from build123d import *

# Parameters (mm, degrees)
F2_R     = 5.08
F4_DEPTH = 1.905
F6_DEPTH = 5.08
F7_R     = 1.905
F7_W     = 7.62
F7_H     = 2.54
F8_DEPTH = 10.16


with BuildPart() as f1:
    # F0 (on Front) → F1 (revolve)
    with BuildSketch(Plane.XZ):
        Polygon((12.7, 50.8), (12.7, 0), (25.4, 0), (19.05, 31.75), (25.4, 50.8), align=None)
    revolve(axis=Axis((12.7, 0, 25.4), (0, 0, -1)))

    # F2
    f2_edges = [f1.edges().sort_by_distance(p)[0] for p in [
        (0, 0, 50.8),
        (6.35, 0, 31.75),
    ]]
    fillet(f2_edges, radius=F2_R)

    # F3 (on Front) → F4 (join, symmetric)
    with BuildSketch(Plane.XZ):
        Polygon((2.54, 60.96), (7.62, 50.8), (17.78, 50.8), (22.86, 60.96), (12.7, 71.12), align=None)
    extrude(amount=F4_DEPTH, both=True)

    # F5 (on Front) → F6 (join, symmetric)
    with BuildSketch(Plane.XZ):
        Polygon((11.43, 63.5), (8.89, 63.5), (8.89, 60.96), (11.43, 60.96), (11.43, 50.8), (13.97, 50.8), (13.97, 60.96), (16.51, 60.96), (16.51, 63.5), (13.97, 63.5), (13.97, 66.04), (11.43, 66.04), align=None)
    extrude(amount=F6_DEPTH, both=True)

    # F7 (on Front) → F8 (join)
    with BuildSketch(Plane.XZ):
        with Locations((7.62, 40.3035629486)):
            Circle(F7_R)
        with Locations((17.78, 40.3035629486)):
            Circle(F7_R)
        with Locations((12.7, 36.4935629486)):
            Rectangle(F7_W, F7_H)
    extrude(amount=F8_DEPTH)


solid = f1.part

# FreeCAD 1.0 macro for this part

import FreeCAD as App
import Part
import Sketcher
from FreeCAD import Vector
Q = App.Units.Quantity


def edges_at(feature, points):
    """Names of the edges that pass closest to the given points."""
    edges = feature.Shape.Edges
    near = lambda p: min(range(len(edges)), key=lambda i: edges[i].distToShape(Part.Vertex(*p))[0])
    return sorted({f"Edge{near(p) + 1}" for p in points})


def add_polygon(sketch, points):
    """Adds a closed chain of lines whose ends are joined by coincident constraints."""
    first, n = sketch.GeometryCount, len(points)
    for a, b in zip(points, points[1:] + points[:1]):
        sketch.addGeometry(Part.LineSegment(App.Vector(*a, 0), App.Vector(*b, 0)), False)
    for i in range(n):
        sketch.addConstraint(Sketcher.Constraint("Coincident", first + i, 2, first + (i + 1) % n, 1))

doc = App.newDocument("Part")
body = doc.addObject("PartDesign::Body", "Body")

# Sketch on XZ plane
sketch1 = body.newObject("Sketcher::SketchObject", "Sketch")
sketch1.AttachmentSupport = (doc.getObject("XZ_Plane"), [""])
sketch1.MapMode = "FlatFace"
add_polygon(sketch1, [(12.7, 50.8), (12.7, 0), (25.4, 0), (19.05, 31.75), (25.4, 50.8)])  # lines 0-4
sketch1.addGeometry(Part.LineSegment(Vector(12.7, 50.8, 0), Vector(12.7, 0, 0)), True)  # axis
sketch1.addConstraint([
    Sketcher.Constraint("Vertical", 0),
    Sketcher.Constraint("Horizontal", 1),
    Sketcher.Constraint("Horizontal", 4),
    Sketcher.Constraint("Vertical", 5),
    Sketcher.Constraint("Coincident", 5, 1, 4, 2),
    Sketcher.Constraint("PointOnObject", 0, 2, -1),
    Sketcher.Constraint("PointOnObject", 5, 2, -1),
    Sketcher.Constraint("Vertical", 1, 2, 3, 2),
    Sketcher.Constraint("DistanceY", 0, 2, 0, 1, Q("2 in")),
    Sketcher.Constraint("DistanceX", 1, 1, 1, 2, Q("0.5 in")),
    Sketcher.Constraint("DistanceX", -1, 1, 1, 2, Q("1 in")),
    Sketcher.Constraint("DistanceX", -1, 1, 2, 2, Q("0.75 in")),
    Sketcher.Constraint("DistanceY", -1, 1, 2, 2, Q("1.25 in")),
])
revolution = body.newObject("PartDesign::Revolution", "Revolution")
revolution.Profile = sketch1
revolution.ReferenceAxis = (sketch1, ["Axis0"])
revolution.Angle = 360
doc.recompute()

fillet = body.newObject("PartDesign::Fillet", "Fillet")
fillet.Base = (revolution, edges_at(revolution, [(0, 0, 50.8), (6.35, 0, 31.75)]))
fillet.Radius = Q("0.2 in")

# Sketch on XZ plane
sketch2 = body.newObject("Sketcher::SketchObject", "Sketch001")
sketch2.AttachmentSupport = (doc.getObject("XZ_Plane"), [""])
sketch2.MapMode = "FlatFace"
add_polygon(sketch2, [(2.54, 60.96), (7.62, 50.8), (17.78, 50.8), (22.86, 60.96), (12.7, 71.12)])  # lines 0-4
sketch2.addConstraint([
    Sketcher.Constraint("Horizontal", 1),
    Sketcher.Constraint("Perpendicular", 3, 4),
    Sketcher.Constraint("Horizontal", 2, 2, 4, 2),
    Sketcher.Constraint("Equal", 0, 2),
    Sketcher.Constraint("Equal", 3, 4),
    Sketcher.Constraint("DistanceX", 1, 1, 1, 2, Q("0.4 in")),
    Sketcher.Constraint("DistanceY", -1, 1, 0, 2, Q("2 in")),
    Sketcher.Constraint("DistanceX", -1, 1, 0, 2, Q("0.3 in")),
    Sketcher.Constraint("DistanceX", -1, 1, 2, 2, Q("0.9 in")),
    Sketcher.Constraint("DistanceY", -1, 1, 2, 2, Q("2.4 in")),
])
pad1 = body.newObject("PartDesign::Pad", "Pad")
pad1.Profile = sketch2
pad1.Length = Q("0.15 in")
pad1.Midplane = True

# Sketch on XZ plane
sketch3 = body.newObject("Sketcher::SketchObject", "Sketch002")
sketch3.AttachmentSupport = (doc.getObject("XZ_Plane"), [""])
sketch3.MapMode = "FlatFace"
add_polygon(sketch3, [(11.43, 63.5), (8.89, 63.5), (8.89, 60.96), (11.43, 60.96), (11.43, 50.8), (13.97, 50.8), (13.97, 60.96), (16.51, 60.96), (16.51, 63.5), (13.97, 63.5), (13.97, 66.04), (11.43, 66.04)])  # lines 0-11
sketch3.addConstraint([
    Sketcher.Constraint("Horizontal", 0),
    Sketcher.Constraint("Vertical", 1),
    Sketcher.Constraint("Horizontal", 2),
    Sketcher.Constraint("Vertical", 3),
    Sketcher.Constraint("Horizontal", 4),
    Sketcher.Constraint("Vertical", 5),
    Sketcher.Constraint("Horizontal", 6),
    Sketcher.Constraint("Vertical", 7),
    Sketcher.Constraint("Horizontal", 8),
    Sketcher.Constraint("Vertical", 9),
    Sketcher.Constraint("Horizontal", 10),
    Sketcher.Constraint("Vertical", 11),
    Sketcher.Constraint("Horizontal", 2, 2, 5, 2),
    Sketcher.Constraint("Horizontal", 0, 2, 7, 2),
    Sketcher.Constraint("Vertical", 5, 2, 8, 2),
    Sketcher.Constraint("Vertical", 3, 2, 10, 2),
    Sketcher.Constraint("Equal", 2, 4),
    Sketcher.Constraint("Equal", 4, 6),
    Sketcher.Constraint("Equal", 10, 1),
    Sketcher.Constraint("Equal", 7, 9),
    Sketcher.Constraint("DistanceX", 0, 2, 0, 1, Q("0.1 in")),
    Sketcher.Constraint("DistanceY", 3, 2, 3, 1, Q("0.4 in")),
    Sketcher.Constraint("DistanceY", -1, 1, 3, 2, Q("2 in")),
    Sketcher.Constraint("DistanceX", -1, 1, 0, 2, Q("0.35 in")),
])
pad2 = body.newObject("PartDesign::Pad", "Pad001")
pad2.Profile = sketch3
pad2.Length = Q("0.4 in")
pad2.Midplane = True

# Sketch on XZ plane
sketch4 = body.newObject("Sketcher::SketchObject", "Sketch003")
sketch4.AttachmentSupport = (doc.getObject("XZ_Plane"), [""])
sketch4.MapMode = "FlatFace"
sketch4.addGeometry(Part.Circle(Vector(7.62, 40.303563, 0), Vector(0, 0, 1), 1.905), False)  # 0
sketch4.addGeometry(Part.Circle(Vector(17.78, 40.303563, 0), Vector(0, 0, 1), 1.905), False)  # 1
add_polygon(sketch4, [(8.89, 37.763563), (8.89, 35.223563), (16.51, 35.223563), (16.51, 37.763563)])  # lines 2-5
sketch4.addConstraint([
    Sketcher.Constraint("Vertical", 2),
    Sketcher.Constraint("Horizontal", 3),
    Sketcher.Constraint("Vertical", 4),
    Sketcher.Constraint("Horizontal", 5),
    Sketcher.Constraint("Equal", 0, 1),
    Sketcher.Constraint("Horizontal", 0, 3, 1, 3),
    Sketcher.Constraint("Diameter", 0, Q("0.15 in")),
    Sketcher.Constraint("DistanceX", 3, 1, 3, 2, Q("0.3 in")),
    Sketcher.Constraint("DistanceY", 2, 2, 2, 1, Q("0.1 in")),
    Sketcher.Constraint("DistanceX", -1, 1, 0, 3, Q("0.3 in")),
    Sketcher.Constraint("DistanceX", -1, 1, 1, 3, Q("0.7 in")),
    Sketcher.Constraint("DistanceY", 2, 2, 0, 3, Q("0.2 in")),
    Sketcher.Constraint("DistanceX", -1, 1, 2, 2, Q("0.35 in")),
    Sketcher.Constraint("DistanceY", -1, 1, 0, 3, 40.303563),
])
pad3 = body.newObject("PartDesign::Pad", "Pad002")
pad3.Profile = sketch4
pad3.Length = Q("0.4 in")

doc.recompute()
